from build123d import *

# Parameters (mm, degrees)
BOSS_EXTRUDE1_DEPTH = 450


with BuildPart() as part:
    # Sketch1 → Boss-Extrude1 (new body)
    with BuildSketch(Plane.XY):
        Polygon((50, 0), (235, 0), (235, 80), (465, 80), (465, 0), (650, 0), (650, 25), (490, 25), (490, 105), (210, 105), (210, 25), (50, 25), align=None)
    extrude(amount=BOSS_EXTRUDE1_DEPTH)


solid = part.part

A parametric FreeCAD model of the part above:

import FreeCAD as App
import Part
import Sketcher

V = App.Vector

doc = App.newDocument("Part")
params = doc.addObject("Spreadsheet::Sheet", "Params")
for row, (alias, value) in enumerate([
    ("sketch1_width", "185 mm"),
    ("sketch1_width2", "230 mm"),
    ("sketch1_width3", "160 mm"),
    ("sketch1_height", "80 mm"),
    ("sketch1_height2", "25 mm"),
    ("pad1_length", "450 mm"),
], start=1):
    params.set(f"A{row}", alias)
    params.set(f"B{row}", "=" + value)
    params.setAlias(f"B{row}", alias)

body = doc.addObject("PartDesign::Body", "Body")

sketch1 = body.newObject("Sketcher::SketchObject", "Sketch")
sketch1.AttachmentSupport = (doc.getObject("XY_Plane"), [""])
sketch1.MapMode = "FlatFace"
sketch1.addGeometry([
    Part.LineSegment(V(50, 0, 0), V(235, 0, 0)),
    Part.LineSegment(V(235, 0, 0), V(235, 80, 0)),
    Part.LineSegment(V(235, 80, 0), V(465, 80, 0)),
    Part.LineSegment(V(465, 80, 0), V(465, 0, 0)),
    Part.LineSegment(V(465, 0, 0), V(650, 0, 0)),
    Part.LineSegment(V(650, 0, 0), V(650, 25, 0)),
    Part.LineSegment(V(650, 25, 0), V(490, 25, 0)),
    Part.LineSegment(V(490, 25, 0), V(490, 105, 0)),
    Part.LineSegment(V(490, 105, 0), V(210, 105, 0)),
    Part.LineSegment(V(210, 105, 0), V(210, 25, 0)),
    Part.LineSegment(V(210, 25, 0), V(50, 25, 0)),
    Part.LineSegment(V(50, 25, 0), V(50, 0, 0)),
], False)
sketch1.addConstraint([
    Sketcher.Constraint("Coincident", 0, 2, 1, 1),
    Sketcher.Constraint("Coincident", 1, 2, 2, 1),
    Sketcher.Constraint("Coincident", 2, 2, 3, 1),
    Sketcher.Constraint("Coincident", 3, 2, 4, 1),
    Sketcher.Constraint("Coincident", 4, 2, 5, 1),
    Sketcher.Constraint("Coincident", 5, 2, 6, 1),
    Sketcher.Constraint("Coincident", 6, 2, 7, 1),
    Sketcher.Constraint("Coincident", 7, 2, 8, 1),
    Sketcher.Constraint("Coincident", 8, 2, 9, 1),
    Sketcher.Constraint("Coincident", 9, 2, 10, 1),
    Sketcher.Constraint("Coincident", 10, 2, 11, 1),
    Sketcher.Constraint("Coincident", 11, 2, 0, 1),
    Sketcher.Constraint("Horizontal", 0),
    Sketcher.Constraint("Vertical", 1),
    Sketcher.Constraint("Horizontal", 2),
    Sketcher.Constraint("Vertical", 3),
    Sketcher.Constraint("Horizontal", 4),
    Sketcher.Constraint("Vertical", 5),
    Sketcher.Constraint("Horizontal", 6),
    Sketcher.Constraint("Vertical", 7),
    Sketcher.Constraint("Horizontal", 8),
    Sketcher.Constraint("Vertical", 9),
    Sketcher.Constraint("Horizontal", 10),
    Sketcher.Constraint("Vertical", 11),
    Sketcher.Constraint("PointOnObject", 0, 2, -1),
    Sketcher.Constraint("PointOnObject", 3, 2, -1),
    Sketcher.Constraint("Horizontal", 6, 2, 9, 2),
    Sketcher.Constraint("Equal", 0, 4),
    Sketcher.Constraint("Equal", 6, 10),
    Sketcher.Constraint("Equal", 3, 7),
    Sketcher.Constraint("DistanceX", 0, 1, 0, 2, 185.0),
    Sketcher.Constraint("DistanceX", 2, 1, 2, 2, 230.0),
    Sketcher.Constraint("DistanceX", 6, 2, 6, 1, 160.0),
    Sketcher.Constraint("DistanceY", 1, 1, 1, 2, 80.0),
    Sketcher.Constraint("DistanceY", 5, 1, 5, 2, 25.0),
    Sketcher.Constraint("DistanceX", -1, 1, 0, 2, 235.0),
])
sketch1.setExpression("Constraints[30]", "Params.sketch1_width")
sketch1.setExpression("Constraints[31]", "Params.sketch1_width2")
sketch1.setExpression("Constraints[32]", "Params.sketch1_width3")
sketch1.setExpression("Constraints[33]", "Params.sketch1_height")
sketch1.setExpression("Constraints[34]", "Params.sketch1_height2")
pad1 = body.newObject("PartDesign::Pad", "Pad")
pad1.Profile = sketch1
pad1.setExpression("Length", "Params.pad1_length")

doc.recompute()
